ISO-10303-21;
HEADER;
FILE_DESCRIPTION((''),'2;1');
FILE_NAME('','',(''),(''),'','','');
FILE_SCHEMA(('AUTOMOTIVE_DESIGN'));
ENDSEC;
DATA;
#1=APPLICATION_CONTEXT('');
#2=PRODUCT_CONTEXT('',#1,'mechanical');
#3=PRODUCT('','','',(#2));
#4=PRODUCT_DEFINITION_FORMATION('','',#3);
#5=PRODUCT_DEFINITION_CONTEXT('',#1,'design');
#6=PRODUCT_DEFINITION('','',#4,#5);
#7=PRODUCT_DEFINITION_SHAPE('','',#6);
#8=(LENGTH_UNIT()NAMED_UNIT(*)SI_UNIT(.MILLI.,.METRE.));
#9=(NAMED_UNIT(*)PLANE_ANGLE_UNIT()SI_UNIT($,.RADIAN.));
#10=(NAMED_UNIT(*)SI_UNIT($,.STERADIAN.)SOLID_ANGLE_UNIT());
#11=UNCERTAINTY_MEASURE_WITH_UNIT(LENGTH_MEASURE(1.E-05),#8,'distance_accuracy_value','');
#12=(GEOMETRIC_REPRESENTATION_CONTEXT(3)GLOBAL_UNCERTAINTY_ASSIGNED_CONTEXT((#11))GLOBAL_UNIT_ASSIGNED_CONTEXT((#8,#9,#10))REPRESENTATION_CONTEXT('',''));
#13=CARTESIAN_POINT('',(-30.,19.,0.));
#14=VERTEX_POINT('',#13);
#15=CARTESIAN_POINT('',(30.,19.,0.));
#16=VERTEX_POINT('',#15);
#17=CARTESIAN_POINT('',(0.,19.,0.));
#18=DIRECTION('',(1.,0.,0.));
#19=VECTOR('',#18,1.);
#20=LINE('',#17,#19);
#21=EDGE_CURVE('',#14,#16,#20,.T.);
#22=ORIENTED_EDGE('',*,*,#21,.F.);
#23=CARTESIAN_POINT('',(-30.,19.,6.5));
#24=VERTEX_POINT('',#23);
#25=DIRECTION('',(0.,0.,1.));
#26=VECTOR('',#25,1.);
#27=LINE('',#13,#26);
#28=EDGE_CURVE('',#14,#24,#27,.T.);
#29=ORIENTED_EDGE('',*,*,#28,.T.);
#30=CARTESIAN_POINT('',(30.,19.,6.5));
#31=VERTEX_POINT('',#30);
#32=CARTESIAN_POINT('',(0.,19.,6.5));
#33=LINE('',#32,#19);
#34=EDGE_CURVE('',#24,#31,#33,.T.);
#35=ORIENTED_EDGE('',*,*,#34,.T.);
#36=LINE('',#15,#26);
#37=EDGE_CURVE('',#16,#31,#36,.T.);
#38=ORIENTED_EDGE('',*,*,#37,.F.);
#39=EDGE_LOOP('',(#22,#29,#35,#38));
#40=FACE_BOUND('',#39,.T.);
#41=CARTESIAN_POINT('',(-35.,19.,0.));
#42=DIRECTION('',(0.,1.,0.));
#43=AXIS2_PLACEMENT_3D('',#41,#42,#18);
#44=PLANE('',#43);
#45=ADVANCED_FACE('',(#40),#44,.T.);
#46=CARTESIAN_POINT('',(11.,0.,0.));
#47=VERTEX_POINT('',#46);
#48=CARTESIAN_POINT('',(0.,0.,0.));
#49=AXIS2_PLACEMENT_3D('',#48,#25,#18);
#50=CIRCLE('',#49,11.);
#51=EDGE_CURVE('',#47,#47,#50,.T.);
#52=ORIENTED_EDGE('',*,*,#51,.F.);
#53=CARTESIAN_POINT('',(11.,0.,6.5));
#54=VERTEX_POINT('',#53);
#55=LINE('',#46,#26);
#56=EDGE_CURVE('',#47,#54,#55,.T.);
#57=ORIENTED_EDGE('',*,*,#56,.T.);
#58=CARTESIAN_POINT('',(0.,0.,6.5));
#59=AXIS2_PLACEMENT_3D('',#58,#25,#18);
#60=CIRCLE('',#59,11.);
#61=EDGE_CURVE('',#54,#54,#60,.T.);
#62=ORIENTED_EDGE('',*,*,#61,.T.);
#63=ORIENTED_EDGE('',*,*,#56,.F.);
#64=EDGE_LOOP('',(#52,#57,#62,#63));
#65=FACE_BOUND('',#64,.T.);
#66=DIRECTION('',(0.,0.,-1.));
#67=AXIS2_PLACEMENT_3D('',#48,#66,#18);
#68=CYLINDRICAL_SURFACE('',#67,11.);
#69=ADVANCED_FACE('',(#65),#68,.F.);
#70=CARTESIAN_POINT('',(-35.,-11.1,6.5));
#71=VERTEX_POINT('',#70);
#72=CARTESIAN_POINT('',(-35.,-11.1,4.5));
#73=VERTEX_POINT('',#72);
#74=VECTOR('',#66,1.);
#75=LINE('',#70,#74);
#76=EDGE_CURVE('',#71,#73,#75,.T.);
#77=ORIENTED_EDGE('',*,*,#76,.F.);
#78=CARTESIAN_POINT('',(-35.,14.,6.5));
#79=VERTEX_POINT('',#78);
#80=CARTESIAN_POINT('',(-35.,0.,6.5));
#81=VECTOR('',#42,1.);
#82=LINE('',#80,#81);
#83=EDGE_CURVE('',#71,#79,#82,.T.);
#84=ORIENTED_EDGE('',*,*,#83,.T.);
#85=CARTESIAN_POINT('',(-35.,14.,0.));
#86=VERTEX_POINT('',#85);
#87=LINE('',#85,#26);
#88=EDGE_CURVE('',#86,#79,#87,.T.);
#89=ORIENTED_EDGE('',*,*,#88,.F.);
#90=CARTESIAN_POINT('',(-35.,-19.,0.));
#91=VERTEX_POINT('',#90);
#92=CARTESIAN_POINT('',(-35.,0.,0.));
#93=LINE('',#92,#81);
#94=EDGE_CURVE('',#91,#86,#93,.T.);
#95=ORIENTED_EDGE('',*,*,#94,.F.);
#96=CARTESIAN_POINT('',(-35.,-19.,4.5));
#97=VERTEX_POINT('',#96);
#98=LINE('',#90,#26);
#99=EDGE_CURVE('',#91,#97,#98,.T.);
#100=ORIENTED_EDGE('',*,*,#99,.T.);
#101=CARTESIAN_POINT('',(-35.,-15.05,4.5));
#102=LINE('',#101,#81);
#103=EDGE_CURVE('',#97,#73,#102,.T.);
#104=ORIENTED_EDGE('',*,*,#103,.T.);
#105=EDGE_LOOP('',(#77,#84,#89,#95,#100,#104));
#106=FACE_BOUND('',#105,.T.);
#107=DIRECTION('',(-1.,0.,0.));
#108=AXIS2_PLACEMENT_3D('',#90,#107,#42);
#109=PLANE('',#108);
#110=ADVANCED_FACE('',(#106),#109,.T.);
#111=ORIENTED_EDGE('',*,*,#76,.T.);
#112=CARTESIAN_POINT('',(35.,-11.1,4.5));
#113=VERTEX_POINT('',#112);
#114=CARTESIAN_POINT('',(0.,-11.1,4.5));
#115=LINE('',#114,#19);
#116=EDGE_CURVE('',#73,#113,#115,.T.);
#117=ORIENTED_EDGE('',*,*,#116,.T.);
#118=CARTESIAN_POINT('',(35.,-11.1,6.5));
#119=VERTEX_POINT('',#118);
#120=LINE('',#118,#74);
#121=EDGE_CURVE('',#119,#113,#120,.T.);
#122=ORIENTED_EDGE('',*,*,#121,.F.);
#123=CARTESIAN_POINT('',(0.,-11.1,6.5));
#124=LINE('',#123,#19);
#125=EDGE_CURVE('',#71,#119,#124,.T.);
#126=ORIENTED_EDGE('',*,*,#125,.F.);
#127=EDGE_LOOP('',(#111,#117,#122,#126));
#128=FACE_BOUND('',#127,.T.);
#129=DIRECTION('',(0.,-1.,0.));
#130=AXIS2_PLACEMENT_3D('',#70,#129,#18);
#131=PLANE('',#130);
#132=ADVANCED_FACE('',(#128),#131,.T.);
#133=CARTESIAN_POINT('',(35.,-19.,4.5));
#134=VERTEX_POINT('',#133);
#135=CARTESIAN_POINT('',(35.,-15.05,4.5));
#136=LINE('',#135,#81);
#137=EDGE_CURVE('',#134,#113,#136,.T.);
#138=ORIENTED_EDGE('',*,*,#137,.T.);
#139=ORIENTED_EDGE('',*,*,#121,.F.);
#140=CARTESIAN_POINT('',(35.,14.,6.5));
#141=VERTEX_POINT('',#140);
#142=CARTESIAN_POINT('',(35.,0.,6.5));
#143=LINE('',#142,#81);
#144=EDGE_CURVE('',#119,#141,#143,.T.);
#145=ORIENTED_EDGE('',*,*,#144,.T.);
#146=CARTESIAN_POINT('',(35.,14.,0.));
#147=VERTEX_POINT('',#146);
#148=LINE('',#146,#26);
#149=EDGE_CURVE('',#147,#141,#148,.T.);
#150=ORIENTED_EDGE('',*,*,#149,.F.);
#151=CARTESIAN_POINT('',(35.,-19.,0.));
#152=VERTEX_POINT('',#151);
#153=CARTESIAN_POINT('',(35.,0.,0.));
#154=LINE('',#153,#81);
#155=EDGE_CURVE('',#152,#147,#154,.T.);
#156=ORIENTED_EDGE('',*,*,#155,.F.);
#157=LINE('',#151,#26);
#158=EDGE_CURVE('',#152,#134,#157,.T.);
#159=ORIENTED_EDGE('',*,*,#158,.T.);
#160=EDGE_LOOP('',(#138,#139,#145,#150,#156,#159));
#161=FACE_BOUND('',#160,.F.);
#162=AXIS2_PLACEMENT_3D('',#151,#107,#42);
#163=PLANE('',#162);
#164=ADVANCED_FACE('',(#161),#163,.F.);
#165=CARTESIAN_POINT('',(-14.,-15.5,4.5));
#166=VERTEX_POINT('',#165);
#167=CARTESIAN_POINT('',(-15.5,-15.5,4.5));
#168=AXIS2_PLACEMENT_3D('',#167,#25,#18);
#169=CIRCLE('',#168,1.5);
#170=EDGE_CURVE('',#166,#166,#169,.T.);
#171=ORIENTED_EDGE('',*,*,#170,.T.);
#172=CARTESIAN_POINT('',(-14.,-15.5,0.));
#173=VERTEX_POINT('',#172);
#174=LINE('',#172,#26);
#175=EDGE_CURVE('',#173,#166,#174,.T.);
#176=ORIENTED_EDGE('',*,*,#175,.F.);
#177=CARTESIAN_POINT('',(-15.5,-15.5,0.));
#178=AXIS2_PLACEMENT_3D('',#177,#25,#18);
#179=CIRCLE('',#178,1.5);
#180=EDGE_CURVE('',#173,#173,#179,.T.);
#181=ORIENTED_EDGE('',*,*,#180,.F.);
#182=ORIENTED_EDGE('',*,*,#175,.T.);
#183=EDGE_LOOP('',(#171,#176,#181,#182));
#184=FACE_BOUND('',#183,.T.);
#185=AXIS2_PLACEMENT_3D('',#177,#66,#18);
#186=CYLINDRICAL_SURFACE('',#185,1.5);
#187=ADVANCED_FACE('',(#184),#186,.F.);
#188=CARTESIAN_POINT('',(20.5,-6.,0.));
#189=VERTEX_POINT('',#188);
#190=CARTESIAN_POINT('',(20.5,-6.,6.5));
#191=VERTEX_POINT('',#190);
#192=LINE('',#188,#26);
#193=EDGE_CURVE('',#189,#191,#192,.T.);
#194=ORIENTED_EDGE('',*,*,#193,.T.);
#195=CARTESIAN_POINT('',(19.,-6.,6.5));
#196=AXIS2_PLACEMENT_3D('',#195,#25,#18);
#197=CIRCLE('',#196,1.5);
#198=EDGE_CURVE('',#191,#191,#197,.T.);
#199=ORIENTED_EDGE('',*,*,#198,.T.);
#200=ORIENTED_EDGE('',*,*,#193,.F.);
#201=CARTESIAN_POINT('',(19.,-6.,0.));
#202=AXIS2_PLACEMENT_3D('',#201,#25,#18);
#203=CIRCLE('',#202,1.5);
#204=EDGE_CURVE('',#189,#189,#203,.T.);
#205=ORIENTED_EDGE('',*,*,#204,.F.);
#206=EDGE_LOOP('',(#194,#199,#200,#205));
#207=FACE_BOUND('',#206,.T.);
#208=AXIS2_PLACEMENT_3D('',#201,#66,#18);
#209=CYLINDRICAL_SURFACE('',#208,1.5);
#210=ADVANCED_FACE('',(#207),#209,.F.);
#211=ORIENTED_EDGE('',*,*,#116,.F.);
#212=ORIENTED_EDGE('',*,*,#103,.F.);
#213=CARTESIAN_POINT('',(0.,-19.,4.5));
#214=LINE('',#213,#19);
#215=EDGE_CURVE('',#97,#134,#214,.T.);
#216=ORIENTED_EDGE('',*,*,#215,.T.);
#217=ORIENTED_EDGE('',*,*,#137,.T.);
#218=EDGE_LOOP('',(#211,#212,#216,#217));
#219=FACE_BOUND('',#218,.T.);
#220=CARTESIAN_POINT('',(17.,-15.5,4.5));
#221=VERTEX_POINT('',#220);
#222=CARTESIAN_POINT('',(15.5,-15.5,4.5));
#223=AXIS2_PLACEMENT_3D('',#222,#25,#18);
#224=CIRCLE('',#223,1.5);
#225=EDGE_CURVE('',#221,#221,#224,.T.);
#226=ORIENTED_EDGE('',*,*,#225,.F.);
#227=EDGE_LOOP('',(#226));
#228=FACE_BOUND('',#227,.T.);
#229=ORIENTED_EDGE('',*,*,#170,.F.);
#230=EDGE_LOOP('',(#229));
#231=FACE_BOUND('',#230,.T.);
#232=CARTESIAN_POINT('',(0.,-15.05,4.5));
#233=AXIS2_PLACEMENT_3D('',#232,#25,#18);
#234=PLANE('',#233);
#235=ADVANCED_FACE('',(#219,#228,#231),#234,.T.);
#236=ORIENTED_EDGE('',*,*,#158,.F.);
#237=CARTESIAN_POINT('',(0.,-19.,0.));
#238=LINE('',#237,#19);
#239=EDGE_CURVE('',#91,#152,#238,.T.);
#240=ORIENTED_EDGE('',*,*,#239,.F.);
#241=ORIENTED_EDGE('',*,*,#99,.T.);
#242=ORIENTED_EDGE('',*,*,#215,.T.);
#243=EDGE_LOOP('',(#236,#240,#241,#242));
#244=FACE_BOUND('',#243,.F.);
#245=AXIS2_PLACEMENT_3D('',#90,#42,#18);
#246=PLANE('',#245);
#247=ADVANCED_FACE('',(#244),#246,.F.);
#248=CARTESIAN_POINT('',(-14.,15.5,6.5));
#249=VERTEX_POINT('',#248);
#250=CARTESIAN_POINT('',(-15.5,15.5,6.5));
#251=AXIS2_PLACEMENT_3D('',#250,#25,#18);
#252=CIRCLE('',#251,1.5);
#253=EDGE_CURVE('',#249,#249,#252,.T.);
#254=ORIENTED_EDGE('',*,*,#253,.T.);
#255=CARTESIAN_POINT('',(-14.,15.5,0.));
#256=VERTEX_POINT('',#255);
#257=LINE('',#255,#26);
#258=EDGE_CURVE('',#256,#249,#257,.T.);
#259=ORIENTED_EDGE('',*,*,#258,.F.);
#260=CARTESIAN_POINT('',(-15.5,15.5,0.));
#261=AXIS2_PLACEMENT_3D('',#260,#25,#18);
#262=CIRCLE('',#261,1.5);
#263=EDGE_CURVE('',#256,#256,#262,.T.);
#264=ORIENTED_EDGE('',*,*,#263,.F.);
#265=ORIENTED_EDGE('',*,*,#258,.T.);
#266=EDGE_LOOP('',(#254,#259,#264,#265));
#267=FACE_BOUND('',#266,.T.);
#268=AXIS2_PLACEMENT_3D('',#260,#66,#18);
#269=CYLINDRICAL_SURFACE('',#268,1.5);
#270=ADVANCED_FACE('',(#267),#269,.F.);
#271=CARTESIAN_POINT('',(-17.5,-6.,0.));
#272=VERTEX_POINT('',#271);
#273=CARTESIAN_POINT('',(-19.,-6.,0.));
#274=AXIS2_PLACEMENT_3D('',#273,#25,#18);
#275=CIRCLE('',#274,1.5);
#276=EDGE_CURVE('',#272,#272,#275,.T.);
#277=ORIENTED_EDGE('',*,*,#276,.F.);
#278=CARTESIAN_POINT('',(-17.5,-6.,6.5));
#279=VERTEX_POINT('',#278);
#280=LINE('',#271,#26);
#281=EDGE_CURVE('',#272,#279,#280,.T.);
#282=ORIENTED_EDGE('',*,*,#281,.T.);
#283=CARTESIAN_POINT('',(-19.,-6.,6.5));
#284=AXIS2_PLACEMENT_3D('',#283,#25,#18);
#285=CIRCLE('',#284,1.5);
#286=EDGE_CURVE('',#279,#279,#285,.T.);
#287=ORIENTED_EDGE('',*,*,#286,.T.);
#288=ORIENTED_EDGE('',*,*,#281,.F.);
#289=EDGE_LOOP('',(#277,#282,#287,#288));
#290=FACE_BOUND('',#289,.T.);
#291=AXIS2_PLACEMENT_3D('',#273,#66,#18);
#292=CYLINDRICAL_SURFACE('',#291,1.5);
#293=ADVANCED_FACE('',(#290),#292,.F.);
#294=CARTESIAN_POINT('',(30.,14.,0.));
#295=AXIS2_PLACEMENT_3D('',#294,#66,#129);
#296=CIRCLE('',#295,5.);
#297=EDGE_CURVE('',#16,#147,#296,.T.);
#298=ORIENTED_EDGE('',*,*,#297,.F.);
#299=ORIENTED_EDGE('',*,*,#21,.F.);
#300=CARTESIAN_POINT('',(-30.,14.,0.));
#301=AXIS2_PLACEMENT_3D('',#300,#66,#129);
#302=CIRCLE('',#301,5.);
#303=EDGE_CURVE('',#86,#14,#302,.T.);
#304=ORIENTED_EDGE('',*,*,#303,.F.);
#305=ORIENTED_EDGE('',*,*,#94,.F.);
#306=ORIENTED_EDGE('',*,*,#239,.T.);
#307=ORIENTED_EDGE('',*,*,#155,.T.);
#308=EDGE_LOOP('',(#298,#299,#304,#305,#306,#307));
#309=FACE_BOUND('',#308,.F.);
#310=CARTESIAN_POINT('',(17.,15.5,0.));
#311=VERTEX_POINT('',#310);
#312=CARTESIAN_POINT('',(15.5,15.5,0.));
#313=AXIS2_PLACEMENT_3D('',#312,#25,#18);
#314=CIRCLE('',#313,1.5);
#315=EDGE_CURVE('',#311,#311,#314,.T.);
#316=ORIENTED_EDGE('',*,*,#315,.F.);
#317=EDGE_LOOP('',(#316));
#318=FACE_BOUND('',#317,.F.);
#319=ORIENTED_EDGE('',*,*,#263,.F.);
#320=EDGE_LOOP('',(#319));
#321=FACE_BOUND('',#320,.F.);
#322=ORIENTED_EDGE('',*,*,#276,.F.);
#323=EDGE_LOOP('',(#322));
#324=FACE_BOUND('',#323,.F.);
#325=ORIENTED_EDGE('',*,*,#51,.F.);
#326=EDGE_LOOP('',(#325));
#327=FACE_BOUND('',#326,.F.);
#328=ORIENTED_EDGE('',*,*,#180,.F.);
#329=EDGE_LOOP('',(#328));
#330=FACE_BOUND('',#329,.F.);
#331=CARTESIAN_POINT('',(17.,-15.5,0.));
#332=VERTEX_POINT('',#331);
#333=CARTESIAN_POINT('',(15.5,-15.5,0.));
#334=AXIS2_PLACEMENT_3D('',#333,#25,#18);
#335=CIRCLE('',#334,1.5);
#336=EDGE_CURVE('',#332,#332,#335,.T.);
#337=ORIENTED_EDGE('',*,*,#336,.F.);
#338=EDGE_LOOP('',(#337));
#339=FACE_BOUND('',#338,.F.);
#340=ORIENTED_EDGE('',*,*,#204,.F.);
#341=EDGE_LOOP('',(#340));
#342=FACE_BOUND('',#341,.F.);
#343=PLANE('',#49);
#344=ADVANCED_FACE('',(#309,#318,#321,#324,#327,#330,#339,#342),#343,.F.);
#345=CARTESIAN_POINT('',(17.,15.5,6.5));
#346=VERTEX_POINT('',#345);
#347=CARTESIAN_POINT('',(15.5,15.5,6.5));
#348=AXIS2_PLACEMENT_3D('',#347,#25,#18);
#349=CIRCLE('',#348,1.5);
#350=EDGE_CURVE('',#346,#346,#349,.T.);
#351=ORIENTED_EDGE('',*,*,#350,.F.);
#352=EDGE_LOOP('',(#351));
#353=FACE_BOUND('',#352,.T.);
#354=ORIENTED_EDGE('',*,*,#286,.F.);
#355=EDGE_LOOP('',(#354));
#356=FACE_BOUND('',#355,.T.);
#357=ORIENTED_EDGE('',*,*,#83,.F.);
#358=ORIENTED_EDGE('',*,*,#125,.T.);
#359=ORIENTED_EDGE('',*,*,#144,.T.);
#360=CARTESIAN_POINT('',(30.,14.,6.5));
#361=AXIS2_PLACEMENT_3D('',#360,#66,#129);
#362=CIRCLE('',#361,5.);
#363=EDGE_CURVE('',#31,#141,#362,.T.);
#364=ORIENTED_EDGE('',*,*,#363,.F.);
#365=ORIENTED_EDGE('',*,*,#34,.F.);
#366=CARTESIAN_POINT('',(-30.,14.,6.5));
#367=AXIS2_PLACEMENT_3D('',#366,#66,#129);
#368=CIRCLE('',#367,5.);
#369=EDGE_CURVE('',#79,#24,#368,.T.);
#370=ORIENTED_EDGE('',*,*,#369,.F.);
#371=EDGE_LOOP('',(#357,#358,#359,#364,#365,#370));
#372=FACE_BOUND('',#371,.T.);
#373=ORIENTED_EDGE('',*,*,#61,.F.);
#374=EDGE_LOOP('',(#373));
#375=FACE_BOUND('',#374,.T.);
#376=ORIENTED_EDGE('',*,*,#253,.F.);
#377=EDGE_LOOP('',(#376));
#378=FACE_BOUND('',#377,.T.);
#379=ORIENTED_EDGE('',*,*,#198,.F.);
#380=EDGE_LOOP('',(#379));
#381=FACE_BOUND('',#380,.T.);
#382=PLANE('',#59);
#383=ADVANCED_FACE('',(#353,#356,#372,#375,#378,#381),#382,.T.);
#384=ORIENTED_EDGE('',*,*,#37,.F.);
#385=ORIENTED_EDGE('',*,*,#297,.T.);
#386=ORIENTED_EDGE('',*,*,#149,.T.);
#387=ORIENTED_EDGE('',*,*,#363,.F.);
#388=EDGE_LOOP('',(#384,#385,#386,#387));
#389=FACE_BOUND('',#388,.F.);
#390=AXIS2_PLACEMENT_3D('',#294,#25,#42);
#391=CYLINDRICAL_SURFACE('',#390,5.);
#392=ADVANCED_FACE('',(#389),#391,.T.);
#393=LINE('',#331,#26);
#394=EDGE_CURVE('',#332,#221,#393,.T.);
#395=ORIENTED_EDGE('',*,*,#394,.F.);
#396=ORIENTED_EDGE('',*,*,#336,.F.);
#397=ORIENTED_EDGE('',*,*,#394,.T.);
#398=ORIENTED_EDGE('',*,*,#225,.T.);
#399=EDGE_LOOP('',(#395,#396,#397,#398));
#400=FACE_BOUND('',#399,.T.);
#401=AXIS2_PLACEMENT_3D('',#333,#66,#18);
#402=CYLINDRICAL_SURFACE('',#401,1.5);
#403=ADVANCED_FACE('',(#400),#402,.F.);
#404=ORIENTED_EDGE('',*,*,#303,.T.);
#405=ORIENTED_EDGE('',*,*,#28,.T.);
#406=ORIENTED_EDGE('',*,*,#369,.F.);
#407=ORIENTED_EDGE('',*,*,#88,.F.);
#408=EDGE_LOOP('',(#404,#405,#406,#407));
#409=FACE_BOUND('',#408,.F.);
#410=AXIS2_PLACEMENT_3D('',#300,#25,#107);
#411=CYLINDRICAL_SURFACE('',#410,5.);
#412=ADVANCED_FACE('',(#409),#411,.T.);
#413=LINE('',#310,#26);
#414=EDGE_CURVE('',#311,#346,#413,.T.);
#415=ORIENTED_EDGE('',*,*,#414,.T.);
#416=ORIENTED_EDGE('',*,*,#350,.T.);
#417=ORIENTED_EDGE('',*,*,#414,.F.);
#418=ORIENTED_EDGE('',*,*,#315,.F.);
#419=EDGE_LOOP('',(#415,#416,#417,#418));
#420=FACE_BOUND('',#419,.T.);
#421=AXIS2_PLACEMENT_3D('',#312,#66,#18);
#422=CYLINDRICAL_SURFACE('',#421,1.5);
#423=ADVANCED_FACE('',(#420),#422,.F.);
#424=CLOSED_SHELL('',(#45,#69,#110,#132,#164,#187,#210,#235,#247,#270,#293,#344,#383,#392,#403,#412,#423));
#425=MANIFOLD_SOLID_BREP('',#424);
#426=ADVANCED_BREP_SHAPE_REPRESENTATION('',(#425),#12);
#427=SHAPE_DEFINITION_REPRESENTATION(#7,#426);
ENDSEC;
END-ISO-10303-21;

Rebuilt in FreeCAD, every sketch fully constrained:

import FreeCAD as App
import Part
import Sketcher


def edges_at(feature, points):
    """Names of the edges that pass closest to the given points."""
    edges = feature.Shape.Edges
    near = lambda p: min(range(len(edges)), key=lambda i: edges[i].distToShape(Part.Vertex(*p))[0])
    return sorted({f"Edge{near(p) + 1}" for p in points})

doc = App.newDocument("Part")
body = doc.addObject("PartDesign::Body", "Body")

sketch1 = doc.addObject("Sketcher::SketchObject", "Sketch")
body.addObject(sketch1)
sketch1.AttachmentSupport = (doc.XY_Plane, [""])
sketch1.MapMode = "FlatFace"
sketch1.addGeometry(Part.LineSegment(App.Vector(-35, 19, 0), App.Vector(-35, -19, 0)), False)
sketch1.addGeometry(Part.LineSegment(App.Vector(-35, -19, 0), App.Vector(35, -19, 0)), False)
sketch1.addGeometry(Part.LineSegment(App.Vector(35, -19, 0), App.Vector(35, 19, 0)), False)
sketch1.addGeometry(Part.LineSegment(App.Vector(35, 19, 0), App.Vector(-35, 19, 0)), False)
sketch1.addGeometry(Part.Circle(App.Vector(-15.5, -15.5, 0), App.Vector(0, 0, 1), 1.5), False)
sketch1.addGeometry(Part.Circle(App.Vector(-19, -6, 0), App.Vector(0, 0, 1), 1.5), False)
sketch1.addGeometry(Part.Circle(App.Vector(15.5, -15.5, 0), App.Vector(0, 0, 1), 1.5), False)
sketch1.addGeometry(Part.Circle(App.Vector(19, -6, 0), App.Vector(0, 0, 1), 1.5), False)
sketch1.addGeometry(Part.Circle(App.Vector(-15.5, 15.5, 0), App.Vector(0, 0, 1), 1.5), False)
sketch1.addGeometry(Part.Circle(App.Vector(0, 0, 0), App.Vector(0, 0, 1), 11), False)
sketch1.addGeometry(Part.Circle(App.Vector(15.5, 15.5, 0), App.Vector(0, 0, 1), 1.5), False)
sketch1.addConstraint(Sketcher.Constraint("Coincident", 0, 2, 1, 1))
sketch1.addConstraint(Sketcher.Constraint("Coincident", 1, 2, 2, 1))
sketch1.addConstraint(Sketcher.Constraint("Coincident", 2, 2, 3, 1))
sketch1.addConstraint(Sketcher.Constraint("Coincident", 3, 2, 0, 1))
sketch1.addConstraint(Sketcher.Constraint("Vertical", 0))
sketch1.addConstraint(Sketcher.Constraint("Horizontal", 1))
sketch1.addConstraint(Sketcher.Constraint("Vertical", 2))
sketch1.addConstraint(Sketcher.Constraint("Horizontal", 3))
sketch1.addConstraint(Sketcher.Constraint("Coincident", 9, 3, -1, 1))
sketch1.addConstraint(Sketcher.Constraint("Equal", 4, 5))
sketch1.addConstraint(Sketcher.Constraint("Equal", 5, 6))
sketch1.addConstraint(Sketcher.Constraint("Equal", 6, 7))
sketch1.addConstraint(Sketcher.Constraint("Equal", 7, 8))
sketch1.addConstraint(Sketcher.Constraint("Equal", 8, 10))
sketch1.addConstraint(Sketcher.Constraint("Symmetric", 6, 3, 8, 3, -1, 1))
sketch1.addConstraint(Sketcher.Constraint("Symmetric", 4, 3, 10, 3, -1, 1))
sketch1.addConstraint(Sketcher.Constraint("Symmetric", 0, 2, 2, 2, -1, 1))
sketch1.addConstraint(Sketcher.Constraint("Symmetric", 4, 3, 6, 3, -2))
sketch1.addConstraint(Sketcher.Constraint("Symmetric", 5, 3, 7, 3, -2))
sketch1.addConstraint(Sketcher.Constraint("Diameter", 4, 3.0))
sketch1.addConstraint(Sketcher.Constraint("Diameter", 9, 22.0))
sketch1.addConstraint(Sketcher.Constraint("DistanceX", 1, 1, 1, 2, 70.0))
sketch1.addConstraint(Sketcher.Constraint("DistanceY", 0, 2, 0, 1, 38.0))
sketch1.addConstraint(Sketcher.Constraint("DistanceX", 5, 3, -1, 1, 19.0))
sketch1.addConstraint(Sketcher.Constraint("DistanceY", 5, 3, -1, 1, 6.0))
sketch1.addConstraint(Sketcher.Constraint("DistanceX", 4, 3, 6, 3, 31.0))
sketch1.addConstraint(Sketcher.Constraint("DistanceY", 4, 3, 8, 3, 31.0))
pad1 = doc.addObject("PartDesign::Pad", "Pad")
body.addObject(pad1)
pad1.Profile = sketch1
pad1.Length = 6.5

sketch2 = doc.addObject("Sketcher::SketchObject", "Sketch001")
body.addObject(sketch2)
sketch2.AttachmentSupport = (doc.XY_Plane, [""])
sketch2.MapMode = "FlatFace"
sketch2.AttachmentOffset = App.Placement(App.Vector(0, 0, 6.5), App.Rotation())
sketch2.addGeometry(Part.LineSegment(App.Vector(-35, -11.1, 0), App.Vector(-35, -19, 0)), False)
sketch2.addGeometry(Part.LineSegment(App.Vector(-35, -19, 0), App.Vector(35, -19, 0)), False)
sketch2.addGeometry(Part.LineSegment(App.Vector(35, -19, 0), App.Vector(35, -11.1, 0)), False)
sketch2.addGeometry(Part.LineSegment(App.Vector(35, -11.1, 0), App.Vector(-35, -11.1, 0)), False)
sketch2.addGeometry(Part.Circle(App.Vector(-15.5, -15.5, 0), App.Vector(0, 0, 1), 1.5), False)
sketch2.addGeometry(Part.Circle(App.Vector(15.5, -15.5, 0), App.Vector(0, 0, 1), 1.5), False)
sketch2.addConstraint(Sketcher.Constraint("Coincident", 0, 2, 1, 1))
sketch2.addConstraint(Sketcher.Constraint("Coincident", 1, 2, 2, 1))
sketch2.addConstraint(Sketcher.Constraint("Coincident", 2, 2, 3, 1))
sketch2.addConstraint(Sketcher.Constraint("Coincident", 3, 2, 0, 1))
sketch2.addConstraint(Sketcher.Constraint("Vertical", 0))
sketch2.addConstraint(Sketcher.Constraint("Horizontal", 1))
sketch2.addConstraint(Sketcher.Constraint("Vertical", 2))
sketch2.addConstraint(Sketcher.Constraint("Horizontal", 3))
sketch2.addConstraint(Sketcher.Constraint("Equal", 4, 5))
sketch2.addConstraint(Sketcher.Constraint("Symmetric", 4, 3, 5, 3, -2))
sketch2.addConstraint(Sketcher.Constraint("Diameter", 4, 3.0))
sketch2.addConstraint(Sketcher.Constraint("DistanceX", 1, 1, 1, 2, 70.0))
sketch2.addConstraint(Sketcher.Constraint("DistanceY", 0, 2, 0, 1, 7.9))
sketch2.addConstraint(Sketcher.Constraint("DistanceX", 0, 2, -1, 1, 35.0))
sketch2.addConstraint(Sketcher.Constraint("DistanceY", 0, 2, -1, 1, 19.0))
sketch2.addConstraint(Sketcher.Constraint("DistanceX", 4, 3, 5, 3, 31.0))
sketch2.addConstraint(Sketcher.Constraint("DistanceY", 4, 3, -1, 1, 15.5))
pocket1 = doc.addObject("PartDesign::Pocket", "Pocket")
body.addObject(pocket1)
pocket1.Profile = sketch2
pocket1.Length = 2
doc.recompute()

fillet = doc.addObject("PartDesign::Fillet", "Fillet")
body.addObject(fillet)
fillet.Base = (pocket1, edges_at(pocket1, [(35, 19, 3.25), (-35, 19, 3.25)]))
fillet.Radius = 5

doc.recompute()
